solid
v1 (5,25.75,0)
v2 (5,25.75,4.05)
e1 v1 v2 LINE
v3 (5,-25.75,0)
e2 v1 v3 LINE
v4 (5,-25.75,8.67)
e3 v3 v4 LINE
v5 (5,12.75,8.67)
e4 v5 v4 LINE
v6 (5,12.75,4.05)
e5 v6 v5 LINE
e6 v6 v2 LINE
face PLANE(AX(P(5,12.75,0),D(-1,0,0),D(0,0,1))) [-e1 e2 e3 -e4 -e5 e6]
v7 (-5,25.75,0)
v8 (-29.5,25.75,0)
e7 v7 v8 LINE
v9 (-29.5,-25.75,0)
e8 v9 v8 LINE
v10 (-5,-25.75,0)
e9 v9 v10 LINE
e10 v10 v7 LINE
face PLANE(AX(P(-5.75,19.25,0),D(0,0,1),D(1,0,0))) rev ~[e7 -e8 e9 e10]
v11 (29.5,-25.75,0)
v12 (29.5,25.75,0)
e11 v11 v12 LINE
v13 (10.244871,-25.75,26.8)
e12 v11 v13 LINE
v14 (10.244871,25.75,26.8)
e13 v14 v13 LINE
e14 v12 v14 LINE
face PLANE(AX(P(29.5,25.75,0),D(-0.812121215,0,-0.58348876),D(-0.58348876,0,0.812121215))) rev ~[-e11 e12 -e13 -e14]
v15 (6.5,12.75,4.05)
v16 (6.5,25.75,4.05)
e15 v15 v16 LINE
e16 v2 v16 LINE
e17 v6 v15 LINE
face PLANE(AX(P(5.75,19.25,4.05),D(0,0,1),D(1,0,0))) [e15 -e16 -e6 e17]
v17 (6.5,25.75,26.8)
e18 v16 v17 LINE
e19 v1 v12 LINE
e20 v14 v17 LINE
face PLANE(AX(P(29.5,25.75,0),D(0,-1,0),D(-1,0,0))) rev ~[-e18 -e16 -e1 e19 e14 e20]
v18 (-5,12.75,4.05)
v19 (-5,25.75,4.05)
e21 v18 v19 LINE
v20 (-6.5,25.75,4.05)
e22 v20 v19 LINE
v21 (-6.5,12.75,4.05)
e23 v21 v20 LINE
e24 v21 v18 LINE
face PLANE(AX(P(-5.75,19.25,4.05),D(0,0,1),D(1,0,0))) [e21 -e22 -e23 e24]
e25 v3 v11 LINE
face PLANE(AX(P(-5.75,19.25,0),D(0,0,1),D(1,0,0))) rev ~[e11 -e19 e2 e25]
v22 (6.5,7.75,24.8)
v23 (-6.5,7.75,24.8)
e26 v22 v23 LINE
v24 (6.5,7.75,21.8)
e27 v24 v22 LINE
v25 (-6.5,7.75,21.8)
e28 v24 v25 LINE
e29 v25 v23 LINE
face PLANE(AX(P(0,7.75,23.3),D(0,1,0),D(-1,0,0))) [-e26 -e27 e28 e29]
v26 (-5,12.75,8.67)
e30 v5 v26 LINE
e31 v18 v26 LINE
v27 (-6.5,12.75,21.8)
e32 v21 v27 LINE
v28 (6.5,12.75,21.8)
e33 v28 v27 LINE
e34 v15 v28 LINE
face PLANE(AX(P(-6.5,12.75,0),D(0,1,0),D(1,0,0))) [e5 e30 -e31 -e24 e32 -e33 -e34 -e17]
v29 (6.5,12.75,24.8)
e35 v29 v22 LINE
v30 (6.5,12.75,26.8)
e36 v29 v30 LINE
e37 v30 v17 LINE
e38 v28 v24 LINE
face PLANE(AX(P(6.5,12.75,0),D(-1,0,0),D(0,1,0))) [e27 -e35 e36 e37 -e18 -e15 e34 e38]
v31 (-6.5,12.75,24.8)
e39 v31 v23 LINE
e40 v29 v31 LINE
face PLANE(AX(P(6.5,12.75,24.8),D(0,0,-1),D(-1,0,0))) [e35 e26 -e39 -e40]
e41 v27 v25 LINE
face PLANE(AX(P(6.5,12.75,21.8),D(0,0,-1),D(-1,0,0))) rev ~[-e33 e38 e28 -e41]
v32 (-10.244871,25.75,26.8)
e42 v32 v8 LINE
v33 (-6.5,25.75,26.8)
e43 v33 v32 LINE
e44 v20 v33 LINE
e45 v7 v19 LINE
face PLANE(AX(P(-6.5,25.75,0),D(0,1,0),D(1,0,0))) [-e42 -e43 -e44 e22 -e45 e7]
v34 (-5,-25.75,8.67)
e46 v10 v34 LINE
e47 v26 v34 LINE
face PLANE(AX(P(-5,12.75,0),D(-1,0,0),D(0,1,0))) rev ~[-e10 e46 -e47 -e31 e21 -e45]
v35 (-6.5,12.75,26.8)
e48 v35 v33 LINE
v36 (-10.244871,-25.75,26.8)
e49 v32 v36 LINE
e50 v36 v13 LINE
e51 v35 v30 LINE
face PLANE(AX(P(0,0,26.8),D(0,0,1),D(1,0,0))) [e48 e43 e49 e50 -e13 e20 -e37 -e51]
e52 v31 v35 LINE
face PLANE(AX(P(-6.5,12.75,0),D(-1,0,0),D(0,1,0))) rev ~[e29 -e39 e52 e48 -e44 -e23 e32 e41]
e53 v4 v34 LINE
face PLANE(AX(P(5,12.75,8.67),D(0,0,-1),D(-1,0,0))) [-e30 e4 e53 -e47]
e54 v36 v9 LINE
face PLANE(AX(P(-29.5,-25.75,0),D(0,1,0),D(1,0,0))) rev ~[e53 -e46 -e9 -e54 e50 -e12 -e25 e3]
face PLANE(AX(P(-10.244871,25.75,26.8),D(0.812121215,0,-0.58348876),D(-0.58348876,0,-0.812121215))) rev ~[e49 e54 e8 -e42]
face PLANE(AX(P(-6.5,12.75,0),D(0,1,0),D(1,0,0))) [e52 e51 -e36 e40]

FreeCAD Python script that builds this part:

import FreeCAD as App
import Part
import Sketcher

V = App.Vector
Q = App.Units.Quantity

doc = App.newDocument("Part")
body = doc.addObject("PartDesign::Body", "Body")

# Sketch on XY plane
sketch1 = body.newObject("Sketcher::SketchObject", "Sketch")
sketch1.AttachmentSupport = (doc.getObject("XY_Plane"), [""])
sketch1.MapMode = "FlatFace"
sketch1.addGeometry(Part.LineSegment(V(-30, 26, 0), V(-30, -26, 0)), False)
sketch1.addGeometry(Part.LineSegment(V(-30, -26, 0), V(30, -26, 0)), False)
sketch1.addGeometry(Part.LineSegment(V(30, -26, 0), V(30, 26, 0)), False)
sketch1.addGeometry(Part.LineSegment(V(30, 26, 0), V(-30, 26, 0)), False)
sketch1.addConstraint(Sketcher.Constraint("Coincident", 0, 2, 1, 1))
sketch1.addConstraint(Sketcher.Constraint("Coincident", 1, 2, 2, 1))
sketch1.addConstraint(Sketcher.Constraint("Coincident", 2, 2, 3, 1))
sketch1.addConstraint(Sketcher.Constraint("Coincident", 3, 2, 0, 1))
sketch1.addConstraint(Sketcher.Constraint("Vertical", 0))
sketch1.addConstraint(Sketcher.Constraint("Horizontal", 1))
sketch1.addConstraint(Sketcher.Constraint("Vertical", 2))
sketch1.addConstraint(Sketcher.Constraint("Horizontal", 3))
sketch1.addConstraint(Sketcher.Constraint("Symmetric", 0, 2, 2, 2, -1, 1))
sketch1.addConstraint(Sketcher.Constraint("DistanceX", 1, 1, 1, 2, Q("59 mm")))
sketch1.addConstraint(Sketcher.Constraint("DistanceY", 0, 2, 0, 1, Q("51.5 mm")))
pad1 = body.newObject("PartDesign::Pad", "Pad")
pad1.Profile = sketch1
pad1.Length = 26.8

# Sketch on XY plane
sketch2 = body.newObject("Sketcher::SketchObject", "Sketch001")
sketch2.AttachmentSupport = (doc.getObject("XY_Plane"), [""])
sketch2.MapMode = "FlatFace"
sketch2.addGeometry(Part.LineSegment(V(-6, 26, 0), V(-6, 13, 0)), False)
sketch2.addGeometry(Part.LineSegment(V(-6, 13, 0), V(6, 13, 0)), False)
sketch2.addGeometry(Part.LineSegment(V(6, 13, 0), V(6, 26, 0)), False)
sketch2.addGeometry(Part.LineSegment(V(6, 26, 0), V(-6, 26, 0)), False)
sketch2.addConstraint(Sketcher.Constraint("Coincident", 0, 2, 1, 1))
sketch2.addConstraint(Sketcher.Constraint("Coincident", 1, 2, 2, 1))
sketch2.addConstraint(Sketcher.Constraint("Coincident", 2, 2, 3, 1))
sketch2.addConstraint(Sketcher.Constraint("Coincident", 3, 2, 0, 1))
sketch2.addConstraint(Sketcher.Constraint("Vertical", 0))
sketch2.addConstraint(Sketcher.Constraint("Horizontal", 1))
sketch2.addConstraint(Sketcher.Constraint("Vertical", 2))
sketch2.addConstraint(Sketcher.Constraint("Horizontal", 3))
sketch2.addConstraint(Sketcher.Constraint("Equal", 3, 0))
sketch2.addConstraint(Sketcher.Constraint("DistanceX", 1, 1, 1, 2, Q("13 mm")))
sketch2.addConstraint(Sketcher.Constraint("DistanceX", 0, 2, -1, 1, Q("6.5 mm")))
sketch2.addConstraint(Sketcher.Constraint("DistanceY", -1, 1, 0, 2, Q("12.75 mm")))
pocket1 = body.newObject("PartDesign::Pocket", "Pocket")
pocket1.Profile = sketch2
pocket1.Length = 26.8
pocket1.Reversed = True

# Sketch on XY plane
sketch3 = body.newObject("Sketcher::SketchObject", "Sketch002")
sketch3.AttachmentSupport = (doc.getObject("XY_Plane"), [""])
sketch3.MapMode = "FlatFace"
sketch3.addGeometry(Part.LineSegment(V(-6.5, 25.8, 0), V(-6.5, 12.8, 0)), False)
sketch3.addGeometry(Part.LineSegment(V(-6.5, 12.8, 0), V(-5, 12.8, 0)), False)
sketch3.addGeometry(Part.LineSegment(V(-5, 12.8, 0), V(-5, 25.8, 0)), False)
sketch3.addGeometry(Part.LineSegment(V(-5, 25.8, 0), V(-6.5, 25.8, 0)), False)
sketch3.addGeometry(Part.LineSegment(V(5, 25.8, 0), V(5, 12.8, 0)), False)
sketch3.addGeometry(Part.LineSegment(V(5, 12.8, 0), V(6.5, 12.8, 0)), False)
sketch3.addGeometry(Part.LineSegment(V(6.5, 12.8, 0), V(6.5, 25.8, 0)), False)
sketch3.addGeometry(Part.LineSegment(V(6.5, 25.8, 0), V(5, 25.8, 0)), False)
sketch3.addConstraint(Sketcher.Constraint("Coincident", 0, 2, 1, 1))
sketch3.addConstraint(Sketcher.Constraint("Coincident", 1, 2, 2, 1))
sketch3.addConstraint(Sketcher.Constraint("Coincident", 2, 2, 3, 1))
sketch3.addConstraint(Sketcher.Constraint("Coincident", 3, 2, 0, 1))
sketch3.addConstraint(Sketcher.Constraint("Coincident", 4, 2, 5, 1))
sketch3.addConstraint(Sketcher.Constraint("Coincident", 5, 2, 6, 1))
sketch3.addConstraint(Sketcher.Constraint("Coincident", 6, 2, 7, 1))
sketch3.addConstraint(Sketcher.Constraint("Coincident", 7, 2, 4, 1))
sketch3.addConstraint(Sketcher.Constraint("Vertical", 0))
sketch3.addConstraint(Sketcher.Constraint("Horizontal", 1))
sketch3.addConstraint(Sketcher.Constraint("Vertical", 2))
sketch3.addConstraint(Sketcher.Constraint("Horizontal", 3))
sketch3.addConstraint(Sketcher.Constraint("Vertical", 4))
sketch3.addConstraint(Sketcher.Constraint("Horizontal", 5))
sketch3.addConstraint(Sketcher.Constraint("Vertical", 6))
sketch3.addConstraint(Sketcher.Constraint("Horizontal", 7))
sketch3.addConstraint(Sketcher.Constraint("Symmetric", 1, 2, 4, 2, -2))
sketch3.addConstraint(Sketcher.Constraint("Symmetric", 3, 2, 6, 2, -2))
sketch3.addConstraint(Sketcher.Constraint("DistanceY", 0, 2, 0, 1, Q("13 mm")))
sketch3.addConstraint(Sketcher.Constraint("DistanceX", 1, 1, 1, 2, Q("1.5 mm")))
sketch3.addConstraint(Sketcher.Constraint("DistanceX", 1, 2, -1, 1, Q("5 mm")))
sketch3.addConstraint(Sketcher.Constraint("DistanceY", -1, 1, 0, 2, Q("12.75 mm")))
pad2 = body.newObject("PartDesign::Pad", "Pad001")
pad2.Profile = sketch3
pad2.Length = 4.05

# Sketch on XZ plane
sketch4 = body.newObject("Sketcher::SketchObject", "Sketch003")
sketch4.AttachmentSupport = (doc.getObject("XZ_Plane"), [""])
sketch4.MapMode = "FlatFace"
sketch4.AttachmentOffset = App.Placement(V(0, 0, -25.75), App.Rotation())
sketch4.addGeometry(Part.LineSegment(V(-10, 27, 0), V(-30, 0, 0)), False)
sketch4.addGeometry(Part.LineSegment(V(-30, 0, 0), V(-30, 27, 0)), False)
sketch4.addGeometry(Part.LineSegment(V(-30, 27, 0), V(-10, 27, 0)), False)
sketch4.addGeometry(Part.LineSegment(V(30, 0, 0), V(10, 27, 0)), False)
sketch4.addGeometry(Part.LineSegment(V(10, 27, 0), V(30, 27, 0)), False)
sketch4.addGeometry(Part.LineSegment(V(30, 27, 0), V(30, 0, 0)), False)
sketch4.addConstraint(Sketcher.Constraint("Coincident", 0, 2, 1, 1))
sketch4.addConstraint(Sketcher.Constraint("Coincident", 1, 2, 2, 1))
sketch4.addConstraint(Sketcher.Constraint("Coincident", 2, 2, 0, 1))
sketch4.addConstraint(Sketcher.Constraint("Coincident", 3, 2, 4, 1))
sketch4.addConstraint(Sketcher.Constraint("Coincident", 4, 2, 5, 1))
sketch4.addConstraint(Sketcher.Constraint("Coincident", 5, 2, 3, 1))
sketch4.addConstraint(Sketcher.Constraint("Vertical", 1))
sketch4.addConstraint(Sketcher.Constraint("Horizontal", 2))
sketch4.addConstraint(Sketcher.Constraint("Horizontal", 4))
sketch4.addConstraint(Sketcher.Constraint("Vertical", 5))
sketch4.addConstraint(Sketcher.Constraint("Symmetric", 0, 2, 5, 2, -1, 1))
sketch4.addConstraint(Sketcher.Constraint("Symmetric", 2, 2, 3, 2, -2))
sketch4.addConstraint(Sketcher.Constraint("PointOnObject", 0, 2, -1))
sketch4.addConstraint(Sketcher.Constraint("Distance", 0, Q("33 mm")))
sketch4.addConstraint(Sketcher.Constraint("DistanceY", 1, 1, 1, 2, Q("26.8 mm")))
sketch4.addConstraint(Sketcher.Constraint("DistanceX", 1, 2, 4, 2, Q("59 mm")))
pocket2 = body.newObject("PartDesign::Pocket", "Pocket001")
pocket2.Profile = sketch4
pocket2.Type = "ThroughAll"
pocket2.Reversed = True

# Sketch on XZ plane
sketch5 = body.newObject("Sketcher::SketchObject", "Sketch004")
sketch5.AttachmentSupport = (doc.getObject("XZ_Plane"), [""])
sketch5.MapMode = "FlatFace"
sketch5.AttachmentOffset = App.Placement(V(0, 0, -12.75), App.Rotation())
sketch5.addGeometry(Part.LineSegment(V(5, 9, 0), V(5, 0, 0)), False)
sketch5.addGeometry(Part.LineSegment(V(5, 0, 0), V(-5, 0, 0)), False)
sketch5.addGeometry(Part.LineSegment(V(-5, 0, 0), V(-5, 9, 0)), False)
sketch5.addGeometry(Part.LineSegment(V(-5, 9, 0), V(5, 9, 0)), False)
sketch5.addConstraint(Sketcher.Constraint("Coincident", 0, 2, 1, 1))
sketch5.addConstraint(Sketcher.Constraint("Coincident", 1, 2, 2, 1))
sketch5.addConstraint(Sketcher.Constraint("Coincident", 2, 2, 3, 1))
sketch5.addConstraint(Sketcher.Constraint("Coincident", 3, 2, 0, 1))
sketch5.addConstraint(Sketcher.Constraint("Vertical", 0))
sketch5.addConstraint(Sketcher.Constraint("Horizontal", 1))
sketch5.addConstraint(Sketcher.Constraint("Vertical", 2))
sketch5.addConstraint(Sketcher.Constraint("Horizontal", 3))
sketch5.addConstraint(Sketcher.Constraint("Symmetric", 0, 2, 1, 2, -1, 1))
sketch5.addConstraint(Sketcher.Constraint("DistanceX", 1, 2, 1, 1, Q("10 mm")))
sketch5.addConstraint(Sketcher.Constraint("DistanceY", 0, 2, 0, 1, Q("8.67 mm")))
pocket3 = body.newObject("PartDesign::Pocket", "Pocket002")
pocket3.Profile = sketch5
pocket3.Type = "ThroughAll"
pocket3.Reversed = True

# Sketch on XZ plane
sketch6 = body.newObject("Sketcher::SketchObject", "Sketch005")
sketch6.AttachmentSupport = (doc.getObject("XZ_Plane"), [""])
sketch6.MapMode = "FlatFace"
sketch6.AttachmentOffset = App.Placement(V(0, 0, -12.75), App.Rotation())
sketch6.addGeometry(Part.LineSegment(V(6.5, 24.8, 0), V(6.5, 21.8, 0)), False)
sketch6.addGeometry(Part.LineSegment(V(6.5, 21.8, 0), V(-6.5, 21.8, 0)), False)
sketch6.addGeometry(Part.LineSegment(V(-6.5, 21.8, 0), V(-6.5, 24.8, 0)), False)
sketch6.addGeometry(Part.LineSegment(V(-6.5, 24.8, 0), V(6.5, 24.8, 0)), False)
sketch6.addConstraint(Sketcher.Constraint("Coincident", 0, 2, 1, 1))
sketch6.addConstraint(Sketcher.Constraint("Coincident", 1, 2, 2, 1))
sketch6.addConstraint(Sketcher.Constraint("Coincident", 2, 2, 3, 1))
sketch6.addConstraint(Sketcher.Constraint("Coincident", 3, 2, 0, 1))
sketch6.addConstraint(Sketcher.Constraint("Vertical", 0))
sketch6.addConstraint(Sketcher.Constraint("Horizontal", 1))
sketch6.addConstraint(Sketcher.Constraint("Vertical", 2))
sketch6.addConstraint(Sketcher.Constraint("Horizontal", 3))
sketch6.addConstraint(Sketcher.Constraint("DistanceX", 1, 2, 1, 1, Q("13 mm")))
sketch6.addConstraint(Sketcher.Constraint("DistanceY", 0, 2, 0, 1, Q("3 mm")))
sketch6.addConstraint(Sketcher.Constraint("DistanceX", -1, 1, 0, 2, Q("6.5 mm")))
sketch6.addConstraint(Sketcher.Constraint("DistanceY", -1, 1, 0, 2, Q("21.8 mm")))
pocket4 = body.newObject("PartDesign::Pocket", "Pocket003")
pocket4.Profile = sketch6
pocket4.Length = 5
pocket4.Reversed = True

doc.recompute()
